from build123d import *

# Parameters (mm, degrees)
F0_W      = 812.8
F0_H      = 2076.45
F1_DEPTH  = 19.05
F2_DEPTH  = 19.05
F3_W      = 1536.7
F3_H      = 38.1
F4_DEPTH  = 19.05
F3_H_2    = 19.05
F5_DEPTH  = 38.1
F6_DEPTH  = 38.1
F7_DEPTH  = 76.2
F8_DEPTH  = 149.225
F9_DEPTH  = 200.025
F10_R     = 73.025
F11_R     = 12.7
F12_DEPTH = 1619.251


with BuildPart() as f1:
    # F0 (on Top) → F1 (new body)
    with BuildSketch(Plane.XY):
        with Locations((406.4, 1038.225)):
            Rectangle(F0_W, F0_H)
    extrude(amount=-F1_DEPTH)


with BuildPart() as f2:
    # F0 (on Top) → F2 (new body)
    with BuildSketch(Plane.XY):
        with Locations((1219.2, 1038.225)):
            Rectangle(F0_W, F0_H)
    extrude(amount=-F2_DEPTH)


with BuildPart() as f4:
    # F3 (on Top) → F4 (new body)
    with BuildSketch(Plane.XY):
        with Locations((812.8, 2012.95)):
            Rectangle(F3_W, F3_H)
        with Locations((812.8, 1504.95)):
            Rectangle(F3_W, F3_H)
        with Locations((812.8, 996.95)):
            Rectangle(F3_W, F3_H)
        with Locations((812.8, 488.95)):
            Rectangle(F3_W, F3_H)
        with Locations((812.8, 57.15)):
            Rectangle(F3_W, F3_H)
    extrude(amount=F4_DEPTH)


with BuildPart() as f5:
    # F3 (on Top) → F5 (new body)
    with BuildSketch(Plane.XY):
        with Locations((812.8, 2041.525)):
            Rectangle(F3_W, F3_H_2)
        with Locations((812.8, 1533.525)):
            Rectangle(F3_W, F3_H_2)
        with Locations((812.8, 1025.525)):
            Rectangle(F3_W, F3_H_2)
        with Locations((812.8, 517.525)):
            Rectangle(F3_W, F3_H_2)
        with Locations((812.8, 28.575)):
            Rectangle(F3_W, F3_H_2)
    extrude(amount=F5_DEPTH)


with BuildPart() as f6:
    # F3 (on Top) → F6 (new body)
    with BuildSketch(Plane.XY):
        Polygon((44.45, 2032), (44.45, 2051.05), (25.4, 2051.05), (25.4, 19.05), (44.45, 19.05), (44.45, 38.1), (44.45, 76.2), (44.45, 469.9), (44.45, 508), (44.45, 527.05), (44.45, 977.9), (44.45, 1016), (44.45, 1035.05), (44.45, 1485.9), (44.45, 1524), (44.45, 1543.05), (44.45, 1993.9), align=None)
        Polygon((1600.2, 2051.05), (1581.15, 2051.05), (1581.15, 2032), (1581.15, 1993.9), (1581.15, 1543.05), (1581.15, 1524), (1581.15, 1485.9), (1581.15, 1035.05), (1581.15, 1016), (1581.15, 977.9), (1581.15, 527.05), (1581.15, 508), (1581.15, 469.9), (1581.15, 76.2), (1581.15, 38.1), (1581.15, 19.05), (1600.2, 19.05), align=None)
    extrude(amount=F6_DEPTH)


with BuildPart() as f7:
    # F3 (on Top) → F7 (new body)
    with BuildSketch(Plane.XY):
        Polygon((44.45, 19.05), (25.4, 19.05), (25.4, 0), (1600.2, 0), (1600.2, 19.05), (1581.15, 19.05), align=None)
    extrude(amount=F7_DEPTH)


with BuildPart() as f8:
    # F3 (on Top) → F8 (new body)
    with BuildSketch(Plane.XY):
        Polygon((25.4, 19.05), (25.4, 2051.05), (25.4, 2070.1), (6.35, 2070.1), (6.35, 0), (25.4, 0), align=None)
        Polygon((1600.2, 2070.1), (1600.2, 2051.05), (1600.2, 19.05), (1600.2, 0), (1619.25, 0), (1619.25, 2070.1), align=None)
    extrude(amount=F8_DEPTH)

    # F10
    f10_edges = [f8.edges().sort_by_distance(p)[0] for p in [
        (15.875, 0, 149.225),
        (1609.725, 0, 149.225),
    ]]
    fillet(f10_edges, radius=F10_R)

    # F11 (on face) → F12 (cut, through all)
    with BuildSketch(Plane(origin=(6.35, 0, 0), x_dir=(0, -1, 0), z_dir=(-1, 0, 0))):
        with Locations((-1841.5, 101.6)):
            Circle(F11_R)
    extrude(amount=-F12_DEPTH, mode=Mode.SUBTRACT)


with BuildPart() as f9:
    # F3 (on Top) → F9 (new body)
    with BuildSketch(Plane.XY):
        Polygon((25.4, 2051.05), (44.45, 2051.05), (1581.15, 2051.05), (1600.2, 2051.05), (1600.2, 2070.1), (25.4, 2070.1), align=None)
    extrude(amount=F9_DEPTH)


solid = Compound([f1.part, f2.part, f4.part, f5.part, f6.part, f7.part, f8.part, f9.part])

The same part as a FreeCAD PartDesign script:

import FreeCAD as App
import Part
import Sketcher

V = App.Vector
Q = App.Units.Quantity


def edges_at(feature, points):
    """Names of the edges that pass closest to the given points."""
    edges = feature.Shape.Edges
    near = lambda p: min(range(len(edges)), key=lambda i: edges[i].distToShape(Part.Vertex(*p))[0])
    return sorted({f"Edge{near(p) + 1}" for p in points})

doc = App.newDocument("Part")
body = doc.addObject("PartDesign::Body", "Body")

# Sketch on XY plane
sketch1 = body.newObject("Sketcher::SketchObject", "Sketch")
sketch1.AttachmentSupport = (doc.getObject("XY_Plane"), [""])
sketch1.MapMode = "FlatFace"
sketch1.addGeometry([
    Part.LineSegment(V(0, 2076, 0), V(0, 0, 0)),
    Part.LineSegment(V(0, 0, 0), V(813, 0, 0)),
    Part.LineSegment(V(813, 0, 0), V(813, 2076, 0)),
    Part.LineSegment(V(813, 2076, 0), V(0, 2076, 0)),
], False)
sketch1.addConstraint([
    Sketcher.Constraint("Coincident", 0, 2, 1, 1),
    Sketcher.Constraint("Coincident", 1, 2, 2, 1),
    Sketcher.Constraint("Coincident", 2, 2, 3, 1),
    Sketcher.Constraint("Coincident", 3, 2, 0, 1),
    Sketcher.Constraint("Vertical", 0),
    Sketcher.Constraint("Horizontal", 1),
    Sketcher.Constraint("Vertical", 2),
    Sketcher.Constraint("Horizontal", 3),
    Sketcher.Constraint("Coincident", 0, 2, -1, 1),
    Sketcher.Constraint("DistanceX", 1, 1, 1, 2, Q("32 in")),
    Sketcher.Constraint("DistanceY", 0, 2, 0, 1, Q("81.75 in")),
])
pad1 = body.newObject("PartDesign::Pad", "Pad")
pad1.Profile = sketch1
pad1.Length = Q("0.75 in")
pad1.Reversed = True
body2 = doc.addObject("PartDesign::Body", "Body001")

# Sketch on XY plane
sketch2 = body2.newObject("Sketcher::SketchObject", "Sketch001")
sketch2.AttachmentSupport = (doc.getObject("XY_Plane001"), [""])
sketch2.MapMode = "FlatFace"
sketch2.addGeometry([
    Part.LineSegment(V(813, 2076, 0), V(813, 0, 0)),
    Part.LineSegment(V(813, 0, 0), V(1626, 0, 0)),
    Part.LineSegment(V(1626, 0, 0), V(1626, 2076, 0)),
    Part.LineSegment(V(1626, 2076, 0), V(813, 2076, 0)),
], False)
sketch2.addConstraint([
    Sketcher.Constraint("Coincident", 0, 2, 1, 1),
    Sketcher.Constraint("Coincident", 1, 2, 2, 1),
    Sketcher.Constraint("Coincident", 2, 2, 3, 1),
    Sketcher.Constraint("Coincident", 3, 2, 0, 1),
    Sketcher.Constraint("Vertical", 0),
    Sketcher.Constraint("Horizontal", 1),
    Sketcher.Constraint("Vertical", 2),
    Sketcher.Constraint("Horizontal", 3),
    Sketcher.Constraint("PointOnObject", 0, 2, -1),
    Sketcher.Constraint("DistanceX", 1, 1, 1, 2, Q("32 in")),
    Sketcher.Constraint("DistanceX", -1, 1, 0, 2, Q("32 in")),
    Sketcher.Constraint("DistanceY", 0, 2, 0, 1, Q("81.75 in")),
])
pad2 = body2.newObject("PartDesign::Pad", "Pad001")
pad2.Profile = sketch2
pad2.Length = Q("0.75 in")
pad2.Reversed = True
body3 = doc.addObject("PartDesign::Body", "Body002")
body3.AllowCompound = True

# Sketch on XY plane
sketch3 = body3.newObject("Sketcher::SketchObject", "Sketch002")
sketch3.AttachmentSupport = (doc.getObject("XY_Plane002"), [""])
sketch3.MapMode = "FlatFace"
sketch3.addGeometry([
    Part.LineSegment(V(44, 2032, 0), V(44, 1994, 0)),  # 0
    Part.LineSegment(V(44, 1994, 0), V(1581, 1994, 0)),  # 1
    Part.LineSegment(V(1581, 1994, 0), V(1581, 2032, 0)),  # 2
    Part.LineSegment(V(1581, 2032, 0), V(44, 2032, 0)),  # 3
    Part.LineSegment(V(44, 1524, 0), V(44, 1486, 0)),  # 4
    Part.LineSegment(V(44, 1486, 0), V(1581, 1486, 0)),  # 5
    Part.LineSegment(V(1581, 1486, 0), V(1581, 1524, 0)),  # 6
    Part.LineSegment(V(1581, 1524, 0), V(44, 1524, 0)),  # 7
    Part.LineSegment(V(44, 1016, 0), V(44, 978, 0)),  # 8
    Part.LineSegment(V(44, 978, 0), V(1581, 978, 0)),  # 9
    Part.LineSegment(V(1581, 978, 0), V(1581, 1016, 0)),  # 10
    Part.LineSegment(V(1581, 1016, 0), V(44, 1016, 0)),  # 11
    Part.LineSegment(V(44, 508, 0), V(44, 470, 0)),  # 12
    Part.LineSegment(V(44, 470, 0), V(1581, 470, 0)),  # 13
    Part.LineSegment(V(1581, 470, 0), V(1581, 508, 0)),  # 14
    Part.LineSegment(V(1581, 508, 0), V(44, 508, 0)),  # 15
    Part.LineSegment(V(44, 76, 0), V(44, 38, 0)),  # 16
    Part.LineSegment(V(44, 38, 0), V(1581, 38, 0)),  # 17
    Part.LineSegment(V(1581, 38, 0), V(1581, 76, 0)),  # 18
    Part.LineSegment(V(1581, 76, 0), V(44, 76, 0)),  # 19
], False)
sketch3.addConstraint([
    Sketcher.Constraint("Coincident", 0, 2, 1, 1),
    Sketcher.Constraint("Coincident", 1, 2, 2, 1),
    Sketcher.Constraint("Coincident", 2, 2, 3, 1),
    Sketcher.Constraint("Coincident", 3, 2, 0, 1),
    Sketcher.Constraint("Coincident", 4, 2, 5, 1),
    Sketcher.Constraint("Coincident", 5, 2, 6, 1),
    Sketcher.Constraint("Coincident", 6, 2, 7, 1),
    Sketcher.Constraint("Coincident", 7, 2, 4, 1),
    Sketcher.Constraint("Coincident", 8, 2, 9, 1),
    Sketcher.Constraint("Coincident", 9, 2, 10, 1),
    Sketcher.Constraint("Coincident", 10, 2, 11, 1),
    Sketcher.Constraint("Coincident", 11, 2, 8, 1),
    Sketcher.Constraint("Coincident", 12, 2, 13, 1),
    Sketcher.Constraint("Coincident", 13, 2, 14, 1),
    Sketcher.Constraint("Coincident", 14, 2, 15, 1),
    Sketcher.Constraint("Coincident", 15, 2, 12, 1),
    Sketcher.Constraint("Coincident", 16, 2, 17, 1),
    Sketcher.Constraint("Coincident", 17, 2, 18, 1),
    Sketcher.Constraint("Coincident", 18, 2, 19, 1),
    Sketcher.Constraint("Coincident", 19, 2, 16, 1),
    Sketcher.Constraint("Vertical", 0),
    Sketcher.Constraint("Horizontal", 1),
    Sketcher.Constraint("Vertical", 2),
    Sketcher.Constraint("Horizontal", 3),
    Sketcher.Constraint("Vertical", 4),
    Sketcher.Constraint("Horizontal", 5),
    Sketcher.Constraint("Vertical", 6),
    Sketcher.Constraint("Horizontal", 7),
    Sketcher.Constraint("Vertical", 8),
    Sketcher.Constraint("Horizontal", 9),
    Sketcher.Constraint("Vertical", 10),
    Sketcher.Constraint("Horizontal", 11),
    Sketcher.Constraint("Vertical", 12),
    Sketcher.Constraint("Horizontal", 13),
    Sketcher.Constraint("Vertical", 14),
    Sketcher.Constraint("Horizontal", 15),
    Sketcher.Constraint("Vertical", 16),
    Sketcher.Constraint("Horizontal", 17),
    Sketcher.Constraint("Vertical", 18),
    Sketcher.Constraint("Horizontal", 19),
    Sketcher.Constraint("Vertical", 3, 2, 4, 2),
    Sketcher.Constraint("Vertical", 2, 2, 5, 2),
    Sketcher.Constraint("Vertical", 7, 2, 8, 2),
    Sketcher.Constraint("Vertical", 6, 2, 9, 2),
    Sketcher.Constraint("Vertical", 11, 2, 12, 2),
    Sketcher.Constraint("Vertical", 10, 2, 13, 2),
    Sketcher.Constraint("Vertical", 15, 2, 16, 2),
    Sketcher.Constraint("Vertical", 14, 2, 17, 2),
    Sketcher.Constraint("Equal", 2, 4),
    Sketcher.Constraint("Equal", 6, 8),
    Sketcher.Constraint("Equal", 10, 12),
    Sketcher.Constraint("Equal", 14, 16),
    Sketcher.Constraint("DistanceX", 1, 1, 1, 2, Q("60.5 in")),
    Sketcher.Constraint("DistanceY", 0, 2, 0, 1, Q("1.5 in")),
    Sketcher.Constraint("DistanceY", -1, 1, 2, 2, Q("80 in")),
    Sketcher.Constraint("DistanceY", -1, 1, 6, 2, Q("60 in")),
    Sketcher.Constraint("DistanceY", -1, 1, 10, 2, Q("40 in")),
    Sketcher.Constraint("DistanceY", -1, 1, 14, 2, Q("20 in")),
    Sketcher.Constraint("DistanceY", -1, 1, 18, 2, Q("3 in")),
    Sketcher.Constraint("DistanceX", -1, 1, 0, 2, Q("1.75 in")),
])
pad3 = body3.newObject("PartDesign::Pad", "Pad002")
pad3.Profile = sketch3
pad3.Length = Q("0.75 in")
body4 = doc.addObject("PartDesign::Body", "Body003")
body4.AllowCompound = True

# Sketch on XY plane
sketch4 = body4.newObject("Sketcher::SketchObject", "Sketch003")
sketch4.AttachmentSupport = (doc.getObject("XY_Plane003"), [""])
sketch4.MapMode = "FlatFace"
sketch4.addGeometry([
    Part.LineSegment(V(44, 2051, 0), V(44, 2032, 0)),  # 0
    Part.LineSegment(V(44, 2032, 0), V(1581, 2032, 0)),  # 1
    Part.LineSegment(V(1581, 2032, 0), V(1581, 2051, 0)),  # 2
    Part.LineSegment(V(1581, 2051, 0), V(44, 2051, 0)),  # 3
    Part.LineSegment(V(44, 1543, 0), V(44, 1524, 0)),  # 4
    Part.LineSegment(V(44, 1524, 0), V(1581, 1524, 0)),  # 5
    Part.LineSegment(V(1581, 1524, 0), V(1581, 1543, 0)),  # 6
    Part.LineSegment(V(1581, 1543, 0), V(44, 1543, 0)),  # 7
    Part.LineSegment(V(44, 1035, 0), V(44, 1016, 0)),  # 8
    Part.LineSegment(V(44, 1016, 0), V(1581, 1016, 0)),  # 9
    Part.LineSegment(V(1581, 1016, 0), V(1581, 1035, 0)),  # 10
    Part.LineSegment(V(1581, 1035, 0), V(44, 1035, 0)),  # 11
    Part.LineSegment(V(44, 527, 0), V(44, 508, 0)),  # 12
    Part.LineSegment(V(44, 508, 0), V(1581, 508, 0)),  # 13
    Part.LineSegment(V(1581, 508, 0), V(1581, 527, 0)),  # 14
    Part.LineSegment(V(1581, 527, 0), V(44, 527, 0)),  # 15
    Part.LineSegment(V(44, 38, 0), V(44, 19, 0)),  # 16
    Part.LineSegment(V(44, 19, 0), V(1581, 19, 0)),  # 17
    Part.LineSegment(V(1581, 19, 0), V(1581, 38, 0)),  # 18
    Part.LineSegment(V(1581, 38, 0), V(44, 38, 0)),  # 19
], False)
sketch4.addConstraint([
    Sketcher.Constraint("Coincident", 0, 2, 1, 1),
    Sketcher.Constraint("Coincident", 1, 2, 2, 1),
    Sketcher.Constraint("Coincident", 2, 2, 3, 1),
    Sketcher.Constraint("Coincident", 3, 2, 0, 1),
    Sketcher.Constraint("Coincident", 4, 2, 5, 1),
    Sketcher.Constraint("Coincident", 5, 2, 6, 1),
    Sketcher.Constraint("Coincident", 6, 2, 7, 1),
    Sketcher.Constraint("Coincident", 7, 2, 4, 1),
    Sketcher.Constraint("Coincident", 8, 2, 9, 1),
    Sketcher.Constraint("Coincident", 9, 2, 10, 1),
    Sketcher.Constraint("Coincident", 10, 2, 11, 1),
    Sketcher.Constraint("Coincident", 11, 2, 8, 1),
    Sketcher.Constraint("Coincident", 12, 2, 13, 1),
    Sketcher.Constraint("Coincident", 13, 2, 14, 1),
    Sketcher.Constraint("Coincident", 14, 2, 15, 1),
    Sketcher.Constraint("Coincident", 15, 2, 12, 1),
    Sketcher.Constraint("Coincident", 16, 2, 17, 1),
    Sketcher.Constraint("Coincident", 17, 2, 18, 1),
    Sketcher.Constraint("Coincident", 18, 2, 19, 1),
    Sketcher.Constraint("Coincident", 19, 2, 16, 1),
    Sketcher.Constraint("Vertical", 0),
    Sketcher.Constraint("Horizontal", 1),
    Sketcher.Constraint("Vertical", 2),
    Sketcher.Constraint("Horizontal", 3),
    Sketcher.Constraint("Vertical", 4),
    Sketcher.Constraint("Horizontal", 5),
    Sketcher.Constraint("Vertical", 6),
    Sketcher.Constraint("Horizontal", 7),
    Sketcher.Constraint("Vertical", 8),
    Sketcher.Constraint("Horizontal", 9),
    Sketcher.Constraint("Vertical", 10),
    Sketcher.Constraint("Horizontal", 11),
    Sketcher.Constraint("Vertical", 12),
    Sketcher.Constraint("Horizontal", 13),
    Sketcher.Constraint("Vertical", 14),
    Sketcher.Constraint("Horizontal", 15),
    Sketcher.Constraint("Vertical", 16),
    Sketcher.Constraint("Horizontal", 17),
    Sketcher.Constraint("Vertical", 18),
    Sketcher.Constraint("Horizontal", 19),
    Sketcher.Constraint("Vertical", 3, 2, 4, 2),
    Sketcher.Constraint("Vertical", 2, 2, 5, 2),
    Sketcher.Constraint("Vertical", 7, 2, 8, 2),
    Sketcher.Constraint("Vertical", 6, 2, 9, 2),
    Sketcher.Constraint("Vertical", 11, 2, 12, 2),
    Sketcher.Constraint("Vertical", 10, 2, 13, 2),
    Sketcher.Constraint("Vertical", 15, 2, 16, 2),
    Sketcher.Constraint("Vertical", 14, 2, 17, 2),
    Sketcher.Constraint("Equal", 2, 4),
    Sketcher.Constraint("Equal", 6, 8),
    Sketcher.Constraint("Equal", 10, 12),
    Sketcher.Constraint("Equal", 14, 16),
    Sketcher.Constraint("DistanceX", 1, 1, 1, 2, Q("60.5 in")),
    Sketcher.Constraint("DistanceY", -1, 1, 0, 2, Q("80 in")),
    Sketcher.Constraint("DistanceY", -1, 1, 4, 2, Q("60 in")),
    Sketcher.Constraint("DistanceY", -1, 1, 8, 2, Q("40 in")),
    Sketcher.Constraint("DistanceY", -1, 1, 12, 2, Q("20 in")),
    Sketcher.Constraint("DistanceY", 16, 2, 15, 2, Q("20 in")),
    Sketcher.Constraint("DistanceY", 0, 2, 0, 1, Q("0.75 in")),
    Sketcher.Constraint("DistanceX", -1, 1, 0, 2, Q("1.75 in")),
])
pad4 = body4.newObject("PartDesign::Pad", "Pad003")
pad4.Profile = sketch4
pad4.Length = Q("1.5 in")
body5 = doc.addObject("PartDesign::Body", "Body004")
body5.AllowCompound = True

# Sketch on XY plane
sketch5 = body5.newObject("Sketcher::SketchObject", "Sketch004")
sketch5.AttachmentSupport = (doc.getObject("XY_Plane004"), [""])
sketch5.MapMode = "FlatFace"
sketch5.addGeometry([
    Part.LineSegment(V(44, 2051, 0), V(25, 2051, 0)),  # 0
    Part.LineSegment(V(25, 2051, 0), V(25, 19, 0)),  # 1
    Part.LineSegment(V(25, 19, 0), V(44, 19, 0)),  # 2
    Part.LineSegment(V(44, 19, 0), V(44, 2051, 0)),  # 3
    Part.LineSegment(V(1600, 2051, 0), V(1581, 2051, 0)),  # 4
    Part.LineSegment(V(1581, 2051, 0), V(1581, 19, 0)),  # 5
    Part.LineSegment(V(1581, 19, 0), V(1600, 19, 0)),  # 6
    Part.LineSegment(V(1600, 19, 0), V(1600, 2051, 0)),  # 7
], False)
sketch5.addConstraint([
    Sketcher.Constraint("Coincident", 0, 2, 1, 1),
    Sketcher.Constraint("Coincident", 1, 2, 2, 1),
    Sketcher.Constraint("Coincident", 2, 2, 3, 1),
    Sketcher.Constraint("Coincident", 3, 2, 0, 1),
    Sketcher.Constraint("Coincident", 4, 2, 5, 1),
    Sketcher.Constraint("Coincident", 5, 2, 6, 1),
    Sketcher.Constraint("Coincident", 6, 2, 7, 1),
    Sketcher.Constraint("Coincident", 7, 2, 4, 1),
    Sketcher.Constraint("Horizontal", 0),
    Sketcher.Constraint("Vertical", 1),
    Sketcher.Constraint("Horizontal", 2),
    Sketcher.Constraint("Vertical", 3),
    Sketcher.Constraint("Horizontal", 4),
    Sketcher.Constraint("Vertical", 5),
    Sketcher.Constraint("Horizontal", 6),
    Sketcher.Constraint("Vertical", 7),
    Sketcher.Constraint("Horizontal", 3, 2, 4, 2),
    Sketcher.Constraint("Horizontal", 2, 2, 5, 2),
    Sketcher.Constraint("Equal", 2, 4),
    Sketcher.Constraint("DistanceY", 1, 2, 1, 1, Q("80 in")),
    Sketcher.Constraint("DistanceX", -1, 1, 0, 2, Q("1 in")),
    Sketcher.Constraint("DistanceX", -1, 1, 6, 2, Q("63 in")),
    Sketcher.Constraint("DistanceX", 0, 2, 0, 1, Q("0.75 in")),
    Sketcher.Constraint("DistanceY", -1, 1, 0, 2, Q("80.75 in")),
])
pad5 = body5.newObject("PartDesign::Pad", "Pad004")
pad5.Profile = sketch5
pad5.Length = Q("1.5 in")
body6 = doc.addObject("PartDesign::Body", "Body005")

# Sketch on XY plane
sketch6 = body6.newObject("Sketcher::SketchObject", "Sketch005")
sketch6.AttachmentSupport = (doc.getObject("XY_Plane005"), [""])
sketch6.MapMode = "FlatFace"
sketch6.addGeometry([
    Part.LineSegment(V(25, 19, 0), V(25, 0, 0)),
    Part.LineSegment(V(25, 0, 0), V(1600, 0, 0)),
    Part.LineSegment(V(1600, 0, 0), V(1600, 19, 0)),
    Part.LineSegment(V(1600, 19, 0), V(25, 19, 0)),
], False)
sketch6.addConstraint([
    Sketcher.Constraint("Coincident", 0, 2, 1, 1),
    Sketcher.Constraint("Coincident", 1, 2, 2, 1),
    Sketcher.Constraint("Coincident", 2, 2, 3, 1),
    Sketcher.Constraint("Coincident", 3, 2, 0, 1),
    Sketcher.Constraint("Vertical", 0),
    Sketcher.Constraint("Horizontal", 1),
    Sketcher.Constraint("Vertical", 2),
    Sketcher.Constraint("Horizontal", 3),
    Sketcher.Constraint("PointOnObject", 0, 2, -1),
    Sketcher.Constraint("DistanceX", 1, 1, 1, 2, Q("62 in")),
    Sketcher.Constraint("DistanceX", -1, 1, 0, 2, Q("1 in")),
    Sketcher.Constraint("DistanceY", 0, 2, 0, 1, Q("0.75 in")),
])
pad6 = body6.newObject("PartDesign::Pad", "Pad005")
pad6.Profile = sketch6
pad6.Length = Q("3 in")
body7 = doc.addObject("PartDesign::Body", "Body006")
body7.AllowCompound = True

# Sketch on XY plane
sketch7 = body7.newObject("Sketcher::SketchObject", "Sketch006")
sketch7.AttachmentSupport = (doc.getObject("XY_Plane006"), [""])
sketch7.MapMode = "FlatFace"
sketch7.addGeometry([
    Part.LineSegment(V(25, 2070, 0), V(6, 2070, 0)),  # 0
    Part.LineSegment(V(6, 2070, 0), V(6, 0, 0)),  # 1
    Part.LineSegment(V(6, 0, 0), V(25, 0, 0)),  # 2
    Part.LineSegment(V(25, 0, 0), V(25, 2070, 0)),  # 3
    Part.LineSegment(V(1600, 2070, 0), V(1600, 0, 0)),  # 4
    Part.LineSegment(V(1600, 0, 0), V(1619, 0, 0)),  # 5
    Part.LineSegment(V(1619, 0, 0), V(1619, 2070, 0)),  # 6
    Part.LineSegment(V(1619, 2070, 0), V(1600, 2070, 0)),  # 7
], False)
sketch7.addConstraint([
    Sketcher.Constraint("Coincident", 0, 2, 1, 1),
    Sketcher.Constraint("Coincident", 1, 2, 2, 1),
    Sketcher.Constraint("Coincident", 2, 2, 3, 1),
    Sketcher.Constraint("Coincident", 3, 2, 0, 1),
    Sketcher.Constraint("Coincident", 4, 2, 5, 1),
    Sketcher.Constraint("Coincident", 5, 2, 6, 1),
    Sketcher.Constraint("Coincident", 6, 2, 7, 1),
    Sketcher.Constraint("Coincident", 7, 2, 4, 1),
    Sketcher.Constraint("Horizontal", 0),
    Sketcher.Constraint("Vertical", 1),
    Sketcher.Constraint("Horizontal", 2),
    Sketcher.Constraint("Vertical", 3),
    Sketcher.Constraint("Vertical", 4),
    Sketcher.Constraint("Horizontal", 5),
    Sketcher.Constraint("Vertical", 6),
    Sketcher.Constraint("Horizontal", 7),
    Sketcher.Constraint("PointOnObject", 1, 2, -1),
    Sketcher.Constraint("PointOnObject", 4, 2, -1),
    Sketcher.Constraint("Horizontal", 3, 2, 6, 2),
    Sketcher.Constraint("Equal", 2, 5),
    Sketcher.Constraint("DistanceY", 1, 2, 1, 1, Q("81.5 in")),
    Sketcher.Constraint("DistanceX", -1, 1, 2, 2, Q("1 in")),
    Sketcher.Constraint("DistanceX", -1, 1, 4, 2, Q("63 in")),
    Sketcher.Constraint("DistanceX", 0, 2, 0, 1, Q("0.75 in")),
])
pad7 = body7.newObject("PartDesign::Pad", "Pad006")
pad7.Profile = sketch7
pad7.Length = Q("5.875 in")
doc.recompute()

fillet = body7.newObject("PartDesign::Fillet", "Fillet")
fillet.Base = (pad7, edges_at(pad7, [(15.875, 0, 149.225), (1609.725, 0, 149.225)]))
fillet.Radius = Q("2.875 in")

# Sketch on YZ plane
sketch8 = body7.newObject("Sketcher::SketchObject", "Sketch007")
sketch8.AttachmentSupport = (doc.getObject("YZ_Plane006"), [""])
sketch8.MapMode = "FlatFace"
sketch8.AttachmentOffset = App.Placement(V(0, 0, 0.25 * 25.4), App.Rotation())
sketch8.addGeometry(Part.Circle(V(1842, 102, 0), V(0, 0, 1), 13), False)
sketch8.addConstraint([
    Sketcher.Constraint("Diameter", 0, Q("1 in")),
    Sketcher.Constraint("DistanceY", -1, 1, 0, 3, Q("4 in")),
    Sketcher.Constraint("DistanceX", -1, 1, 0, 3, Q("72.5 in")),
])
pocket1 = body7.newObject("PartDesign::Pocket", "Pocket")
pocket1.Profile = sketch8
pocket1.Type = "ThroughAll"
pocket1.Reversed = True
body8 = doc.addObject("PartDesign::Body", "Body007")

# Sketch on XY plane
sketch9 = body8.newObject("Sketcher::SketchObject", "Sketch008")
sketch9.AttachmentSupport = (doc.getObject("XY_Plane007"), [""])
sketch9.MapMode = "FlatFace"
sketch9.addGeometry([
    Part.LineSegment(V(25, 2051, 0), V(1600, 2051, 0)),
    Part.LineSegment(V(1600, 2051, 0), V(1600, 2070, 0)),
    Part.LineSegment(V(1600, 2070, 0), V(25, 2070, 0)),
    Part.LineSegment(V(25, 2070, 0), V(25, 2051, 0)),
], False)
sketch9.addConstraint([
    Sketcher.Constraint("Coincident", 0, 2, 1, 1),
    Sketcher.Constraint("Coincident", 1, 2, 2, 1),
    Sketcher.Constraint("Coincident", 2, 2, 3, 1),
    Sketcher.Constraint("Coincident", 3, 2, 0, 1),
    Sketcher.Constraint("Horizontal", 0),
    Sketcher.Constraint("Vertical", 1),
    Sketcher.Constraint("Horizontal", 2),
    Sketcher.Constraint("Vertical", 3),
    Sketcher.Constraint("DistanceX", 0, 1, 0, 2, Q("62 in")),
    Sketcher.Constraint("DistanceX", -1, 1, 0, 2, Q("63 in")),
    Sketcher.Constraint("DistanceY", 1, 1, 1, 2, Q("0.75 in")),
    Sketcher.Constraint("DistanceY", -1, 1, 1, 2, Q("81.5 in")),
])
pad8 = body8.newObject("PartDesign::Pad", "Pad007")
pad8.Profile = sketch9
pad8.Length = Q("7.875 in")

doc.recompute()
